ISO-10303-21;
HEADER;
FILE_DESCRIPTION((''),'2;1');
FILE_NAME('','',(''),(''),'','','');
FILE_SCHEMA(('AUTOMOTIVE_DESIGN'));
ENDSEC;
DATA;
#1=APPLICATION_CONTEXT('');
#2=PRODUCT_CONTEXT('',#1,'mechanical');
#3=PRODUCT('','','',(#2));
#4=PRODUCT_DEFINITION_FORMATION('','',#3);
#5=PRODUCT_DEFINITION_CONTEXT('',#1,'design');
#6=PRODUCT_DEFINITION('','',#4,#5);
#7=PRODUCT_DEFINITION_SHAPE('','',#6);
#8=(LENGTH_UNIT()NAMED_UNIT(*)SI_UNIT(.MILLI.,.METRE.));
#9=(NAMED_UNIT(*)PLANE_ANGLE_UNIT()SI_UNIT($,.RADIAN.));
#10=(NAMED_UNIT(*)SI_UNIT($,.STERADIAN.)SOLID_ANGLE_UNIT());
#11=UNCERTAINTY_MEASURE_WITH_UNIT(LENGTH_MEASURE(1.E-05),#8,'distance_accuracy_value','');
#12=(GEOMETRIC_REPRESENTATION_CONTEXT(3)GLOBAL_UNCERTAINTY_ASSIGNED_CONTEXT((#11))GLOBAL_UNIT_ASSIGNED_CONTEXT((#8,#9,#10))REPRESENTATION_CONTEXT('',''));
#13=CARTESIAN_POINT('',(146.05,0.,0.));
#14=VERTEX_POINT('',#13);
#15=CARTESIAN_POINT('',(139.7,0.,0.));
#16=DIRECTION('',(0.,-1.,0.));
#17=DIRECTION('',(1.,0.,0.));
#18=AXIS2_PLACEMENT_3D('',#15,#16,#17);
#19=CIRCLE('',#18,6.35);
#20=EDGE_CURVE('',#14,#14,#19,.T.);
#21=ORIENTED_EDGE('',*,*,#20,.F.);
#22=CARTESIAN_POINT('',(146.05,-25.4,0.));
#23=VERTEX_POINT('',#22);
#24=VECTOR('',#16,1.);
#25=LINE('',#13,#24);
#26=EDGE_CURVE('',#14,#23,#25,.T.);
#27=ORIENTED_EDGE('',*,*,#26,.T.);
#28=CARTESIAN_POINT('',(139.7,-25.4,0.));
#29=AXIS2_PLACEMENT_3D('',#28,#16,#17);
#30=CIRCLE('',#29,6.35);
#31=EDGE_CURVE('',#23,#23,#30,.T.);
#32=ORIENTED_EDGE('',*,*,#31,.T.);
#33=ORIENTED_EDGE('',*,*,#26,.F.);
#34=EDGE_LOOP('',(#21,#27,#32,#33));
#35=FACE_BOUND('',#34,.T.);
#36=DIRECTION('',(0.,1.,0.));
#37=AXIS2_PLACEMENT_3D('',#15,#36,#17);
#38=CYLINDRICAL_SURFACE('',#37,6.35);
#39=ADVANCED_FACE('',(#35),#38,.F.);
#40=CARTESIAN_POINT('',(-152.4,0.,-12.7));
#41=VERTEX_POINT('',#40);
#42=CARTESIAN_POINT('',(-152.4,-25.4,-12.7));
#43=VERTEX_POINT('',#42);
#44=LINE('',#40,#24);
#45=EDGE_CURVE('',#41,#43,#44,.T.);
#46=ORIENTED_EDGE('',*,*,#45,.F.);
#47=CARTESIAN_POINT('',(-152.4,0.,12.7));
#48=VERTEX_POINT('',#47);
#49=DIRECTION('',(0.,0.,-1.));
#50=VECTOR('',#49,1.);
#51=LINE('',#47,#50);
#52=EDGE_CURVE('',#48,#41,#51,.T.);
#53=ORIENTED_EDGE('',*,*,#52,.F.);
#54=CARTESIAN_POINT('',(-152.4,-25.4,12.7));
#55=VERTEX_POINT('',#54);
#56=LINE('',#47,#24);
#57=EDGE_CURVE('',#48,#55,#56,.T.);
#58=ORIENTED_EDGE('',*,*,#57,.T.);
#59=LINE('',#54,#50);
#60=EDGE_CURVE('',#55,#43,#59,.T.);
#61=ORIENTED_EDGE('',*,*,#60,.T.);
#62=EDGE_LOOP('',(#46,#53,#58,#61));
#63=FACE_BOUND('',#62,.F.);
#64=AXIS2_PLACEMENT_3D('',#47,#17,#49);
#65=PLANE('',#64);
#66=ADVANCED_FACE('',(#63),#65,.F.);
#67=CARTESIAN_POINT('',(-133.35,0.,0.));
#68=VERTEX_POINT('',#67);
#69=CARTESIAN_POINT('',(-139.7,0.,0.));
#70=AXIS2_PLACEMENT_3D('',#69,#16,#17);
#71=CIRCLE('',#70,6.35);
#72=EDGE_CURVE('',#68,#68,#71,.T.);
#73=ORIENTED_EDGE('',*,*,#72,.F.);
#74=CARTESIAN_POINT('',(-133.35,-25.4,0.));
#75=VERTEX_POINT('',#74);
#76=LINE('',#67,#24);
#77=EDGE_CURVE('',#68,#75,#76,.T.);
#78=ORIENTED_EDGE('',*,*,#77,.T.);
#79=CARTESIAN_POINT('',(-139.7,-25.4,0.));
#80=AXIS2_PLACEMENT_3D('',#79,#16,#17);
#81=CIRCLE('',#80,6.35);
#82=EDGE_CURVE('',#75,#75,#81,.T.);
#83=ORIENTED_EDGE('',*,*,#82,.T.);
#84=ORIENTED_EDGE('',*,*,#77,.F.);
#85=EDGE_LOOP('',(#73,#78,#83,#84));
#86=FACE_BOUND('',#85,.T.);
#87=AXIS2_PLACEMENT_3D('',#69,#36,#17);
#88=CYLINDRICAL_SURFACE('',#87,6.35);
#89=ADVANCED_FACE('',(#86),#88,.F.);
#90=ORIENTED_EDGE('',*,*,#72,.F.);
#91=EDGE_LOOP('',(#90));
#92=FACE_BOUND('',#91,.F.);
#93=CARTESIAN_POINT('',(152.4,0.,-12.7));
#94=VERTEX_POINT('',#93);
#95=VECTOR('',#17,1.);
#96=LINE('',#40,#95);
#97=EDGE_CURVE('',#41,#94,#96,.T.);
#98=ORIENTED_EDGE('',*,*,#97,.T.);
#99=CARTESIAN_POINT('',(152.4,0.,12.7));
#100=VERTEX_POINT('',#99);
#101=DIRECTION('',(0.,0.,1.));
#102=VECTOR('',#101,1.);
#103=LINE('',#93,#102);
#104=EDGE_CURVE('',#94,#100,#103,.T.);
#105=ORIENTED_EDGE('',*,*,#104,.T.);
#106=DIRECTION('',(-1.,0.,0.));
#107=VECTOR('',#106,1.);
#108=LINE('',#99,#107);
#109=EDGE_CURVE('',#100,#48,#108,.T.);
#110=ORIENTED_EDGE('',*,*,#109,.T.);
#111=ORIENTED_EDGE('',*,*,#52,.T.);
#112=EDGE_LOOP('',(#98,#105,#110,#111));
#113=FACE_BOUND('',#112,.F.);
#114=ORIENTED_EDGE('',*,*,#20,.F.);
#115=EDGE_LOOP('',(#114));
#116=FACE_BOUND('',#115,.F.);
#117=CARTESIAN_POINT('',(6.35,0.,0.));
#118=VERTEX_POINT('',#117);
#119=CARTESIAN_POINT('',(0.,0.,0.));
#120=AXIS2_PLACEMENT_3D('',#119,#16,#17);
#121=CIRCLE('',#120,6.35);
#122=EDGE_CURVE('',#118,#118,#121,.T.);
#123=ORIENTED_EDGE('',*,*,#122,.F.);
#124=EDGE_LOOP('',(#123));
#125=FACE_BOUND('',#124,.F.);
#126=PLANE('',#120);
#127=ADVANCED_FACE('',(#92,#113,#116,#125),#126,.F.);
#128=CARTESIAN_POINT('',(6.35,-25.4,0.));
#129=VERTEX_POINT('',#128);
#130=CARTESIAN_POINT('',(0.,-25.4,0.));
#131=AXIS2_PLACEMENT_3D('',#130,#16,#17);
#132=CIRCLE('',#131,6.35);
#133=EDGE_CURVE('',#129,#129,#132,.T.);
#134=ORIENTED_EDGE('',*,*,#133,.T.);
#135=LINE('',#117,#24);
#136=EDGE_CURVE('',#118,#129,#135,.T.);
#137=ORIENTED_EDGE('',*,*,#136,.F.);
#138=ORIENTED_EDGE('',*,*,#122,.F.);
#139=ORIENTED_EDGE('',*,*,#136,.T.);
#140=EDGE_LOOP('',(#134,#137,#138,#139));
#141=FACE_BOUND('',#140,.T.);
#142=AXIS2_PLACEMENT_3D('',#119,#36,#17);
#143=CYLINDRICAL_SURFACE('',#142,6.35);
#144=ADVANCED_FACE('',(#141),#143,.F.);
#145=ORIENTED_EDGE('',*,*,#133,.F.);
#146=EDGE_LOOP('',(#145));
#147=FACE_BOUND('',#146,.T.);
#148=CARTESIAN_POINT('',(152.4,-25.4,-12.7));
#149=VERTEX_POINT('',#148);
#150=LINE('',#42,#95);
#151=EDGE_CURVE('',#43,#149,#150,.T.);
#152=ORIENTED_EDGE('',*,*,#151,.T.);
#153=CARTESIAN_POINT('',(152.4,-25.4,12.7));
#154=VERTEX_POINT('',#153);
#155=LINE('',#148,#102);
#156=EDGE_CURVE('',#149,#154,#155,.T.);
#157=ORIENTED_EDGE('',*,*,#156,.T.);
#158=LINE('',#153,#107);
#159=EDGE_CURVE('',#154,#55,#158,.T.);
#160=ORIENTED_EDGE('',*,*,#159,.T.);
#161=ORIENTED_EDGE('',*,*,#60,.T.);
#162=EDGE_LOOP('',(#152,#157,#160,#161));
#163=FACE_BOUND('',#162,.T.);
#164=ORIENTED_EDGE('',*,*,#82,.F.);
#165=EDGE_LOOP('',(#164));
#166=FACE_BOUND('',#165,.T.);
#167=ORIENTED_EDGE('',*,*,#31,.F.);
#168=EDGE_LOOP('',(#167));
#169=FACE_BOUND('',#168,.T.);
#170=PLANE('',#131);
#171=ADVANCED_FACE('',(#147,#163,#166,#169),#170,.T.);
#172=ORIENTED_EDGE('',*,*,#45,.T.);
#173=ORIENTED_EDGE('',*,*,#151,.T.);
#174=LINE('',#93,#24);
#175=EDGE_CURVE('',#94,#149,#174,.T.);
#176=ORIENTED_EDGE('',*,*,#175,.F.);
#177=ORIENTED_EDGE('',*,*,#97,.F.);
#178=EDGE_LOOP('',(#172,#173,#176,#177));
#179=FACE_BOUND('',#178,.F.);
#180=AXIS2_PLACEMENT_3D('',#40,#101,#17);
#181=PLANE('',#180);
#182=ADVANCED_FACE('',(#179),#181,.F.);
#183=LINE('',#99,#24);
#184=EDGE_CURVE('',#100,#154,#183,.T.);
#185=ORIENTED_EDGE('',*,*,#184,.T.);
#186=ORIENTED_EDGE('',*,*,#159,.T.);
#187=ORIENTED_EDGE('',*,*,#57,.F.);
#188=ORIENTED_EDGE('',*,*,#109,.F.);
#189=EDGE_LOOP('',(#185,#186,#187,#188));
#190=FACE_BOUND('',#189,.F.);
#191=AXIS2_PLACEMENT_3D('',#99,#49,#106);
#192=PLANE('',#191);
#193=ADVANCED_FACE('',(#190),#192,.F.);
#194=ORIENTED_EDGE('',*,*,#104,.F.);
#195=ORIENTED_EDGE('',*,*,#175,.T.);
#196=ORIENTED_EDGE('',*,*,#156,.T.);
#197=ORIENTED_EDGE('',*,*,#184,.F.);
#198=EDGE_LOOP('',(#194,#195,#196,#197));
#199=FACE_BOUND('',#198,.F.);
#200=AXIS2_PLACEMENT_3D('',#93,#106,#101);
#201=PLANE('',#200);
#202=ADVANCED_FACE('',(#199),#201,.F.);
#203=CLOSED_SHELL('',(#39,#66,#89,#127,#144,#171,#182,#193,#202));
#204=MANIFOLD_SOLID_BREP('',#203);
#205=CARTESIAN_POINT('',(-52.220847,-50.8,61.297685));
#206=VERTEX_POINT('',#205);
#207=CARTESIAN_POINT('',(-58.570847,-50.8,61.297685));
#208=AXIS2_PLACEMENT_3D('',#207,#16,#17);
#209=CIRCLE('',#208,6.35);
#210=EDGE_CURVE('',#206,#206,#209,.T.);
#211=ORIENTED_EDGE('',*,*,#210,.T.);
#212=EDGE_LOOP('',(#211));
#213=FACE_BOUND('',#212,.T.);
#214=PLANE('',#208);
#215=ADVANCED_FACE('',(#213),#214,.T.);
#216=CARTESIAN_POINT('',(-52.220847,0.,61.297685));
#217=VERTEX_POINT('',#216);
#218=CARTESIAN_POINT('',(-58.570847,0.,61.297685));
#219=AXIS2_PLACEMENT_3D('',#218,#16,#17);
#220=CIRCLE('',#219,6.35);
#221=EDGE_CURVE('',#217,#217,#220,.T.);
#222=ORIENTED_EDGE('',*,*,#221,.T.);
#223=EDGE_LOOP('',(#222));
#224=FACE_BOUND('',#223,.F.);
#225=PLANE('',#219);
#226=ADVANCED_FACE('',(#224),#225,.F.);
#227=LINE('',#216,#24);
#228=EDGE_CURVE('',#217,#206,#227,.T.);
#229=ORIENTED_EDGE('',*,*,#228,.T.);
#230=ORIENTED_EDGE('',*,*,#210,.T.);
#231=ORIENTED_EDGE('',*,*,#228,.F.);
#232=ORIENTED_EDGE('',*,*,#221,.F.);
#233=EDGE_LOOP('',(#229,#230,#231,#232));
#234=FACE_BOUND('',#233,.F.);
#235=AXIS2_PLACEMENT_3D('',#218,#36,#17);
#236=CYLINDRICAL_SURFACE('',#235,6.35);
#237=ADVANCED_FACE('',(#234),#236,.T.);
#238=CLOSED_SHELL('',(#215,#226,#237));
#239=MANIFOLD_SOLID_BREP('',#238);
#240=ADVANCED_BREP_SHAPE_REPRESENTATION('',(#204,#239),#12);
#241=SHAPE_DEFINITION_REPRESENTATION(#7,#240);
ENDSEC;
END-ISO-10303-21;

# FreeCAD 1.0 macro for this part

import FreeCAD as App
import Part
import Sketcher

V = App.Vector
Q = App.Units.Quantity

doc = App.newDocument("Part")
body = doc.addObject("PartDesign::Body", "Body")

# Sketch on XZ plane
sketch1 = body.newObject("Sketcher::SketchObject", "Sketch")
sketch1.AttachmentSupport = (doc.getObject("XZ_Plane"), [""])
sketch1.MapMode = "FlatFace"
sketch1.addGeometry([
    Part.LineSegment(V(-152, 13, 0), V(-152, -13, 0)),  # 0
    Part.LineSegment(V(-152, -13, 0), V(152, -13, 0)),  # 1
    Part.LineSegment(V(152, -13, 0), V(152, 13, 0)),  # 2
    Part.LineSegment(V(152, 13, 0), V(-152, 13, 0)),  # 3
    Part.Circle(V(-140, 0, 0), V(0, 0, 1), 6),  # 4
    Part.Circle(V(0, 0, 0), V(0, 0, 1), 6),  # 5
    Part.Circle(V(140, 0, 0), V(0, 0, 1), 6),  # 6
], False)
sketch1.addConstraint([
    Sketcher.Constraint("Coincident", 0, 2, 1, 1),
    Sketcher.Constraint("Coincident", 1, 2, 2, 1),
    Sketcher.Constraint("Coincident", 2, 2, 3, 1),
    Sketcher.Constraint("Coincident", 3, 2, 0, 1),
    Sketcher.Constraint("Vertical", 0),
    Sketcher.Constraint("Horizontal", 1),
    Sketcher.Constraint("Vertical", 2),
    Sketcher.Constraint("Horizontal", 3),
    Sketcher.Constraint("Coincident", 5, 3, -1, 1),
    Sketcher.Constraint("Equal", 4, 5),
    Sketcher.Constraint("Equal", 5, 6),
    Sketcher.Constraint("Symmetric", 4, 3, 6, 3, -1, 1),
    Sketcher.Constraint("Symmetric", 0, 2, 2, 2, -1, 1),
    Sketcher.Constraint("PointOnObject", 4, 3, -1),
    Sketcher.Constraint("Diameter", 4, Q("0.5 in")),
    Sketcher.Constraint("DistanceX", 1, 1, 1, 2, Q("12 in")),
    Sketcher.Constraint("DistanceY", 0, 2, 0, 1, Q("1 in")),
    Sketcher.Constraint("DistanceX", 4, 3, 6, 3, Q("11 in")),
])
pad1 = body.newObject("PartDesign::Pad", "Pad")
pad1.Profile = sketch1
pad1.Length = Q("1 in")
body2 = doc.addObject("PartDesign::Body", "Body001")

# Sketch on XZ plane
sketch2 = body2.newObject("Sketcher::SketchObject", "Sketch001")
sketch2.AttachmentSupport = (doc.getObject("XZ_Plane001"), [""])
sketch2.MapMode = "FlatFace"
sketch2.addGeometry(Part.Circle(V(-59, 61, 0), V(0, 0, 1), 6), False)
sketch2.addConstraint([
    Sketcher.Constraint("Diameter", 0, Q("0.5 in")),
    Sketcher.Constraint("DistanceX", 0, 3, -1, 1, Q("58.570847 mm")),
    Sketcher.Constraint("DistanceY", -1, 1, 0, 3, Q("61.297685 mm")),
])
pad2 = body2.newObject("PartDesign::Pad", "Pad001")
pad2.Profile = sketch2
pad2.Length = Q("2 in")

doc.recompute()
